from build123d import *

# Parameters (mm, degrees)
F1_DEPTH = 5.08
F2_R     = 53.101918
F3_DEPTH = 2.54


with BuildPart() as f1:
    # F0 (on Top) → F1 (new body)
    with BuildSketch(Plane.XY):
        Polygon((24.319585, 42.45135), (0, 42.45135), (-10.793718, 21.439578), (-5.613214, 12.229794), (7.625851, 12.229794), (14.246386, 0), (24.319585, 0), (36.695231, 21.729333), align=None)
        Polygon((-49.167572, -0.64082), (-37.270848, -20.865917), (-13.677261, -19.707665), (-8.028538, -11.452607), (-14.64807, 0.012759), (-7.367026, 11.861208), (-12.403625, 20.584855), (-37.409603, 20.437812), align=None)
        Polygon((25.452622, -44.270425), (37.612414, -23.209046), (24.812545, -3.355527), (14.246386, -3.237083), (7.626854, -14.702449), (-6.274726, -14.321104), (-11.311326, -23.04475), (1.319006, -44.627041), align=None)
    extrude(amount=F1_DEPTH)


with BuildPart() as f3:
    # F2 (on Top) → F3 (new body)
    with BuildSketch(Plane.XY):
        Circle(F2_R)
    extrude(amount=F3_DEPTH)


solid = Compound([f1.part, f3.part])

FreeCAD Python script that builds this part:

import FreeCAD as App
import Part
import Sketcher
Q = App.Units.Quantity


def add_polygon(sketch, points):
    """Adds a closed chain of lines whose ends are joined by coincident constraints."""
    first, n = sketch.GeometryCount, len(points)
    for a, b in zip(points, points[1:] + points[:1]):
        sketch.addGeometry(Part.LineSegment(App.Vector(*a, 0), App.Vector(*b, 0)), False)
    for i in range(n):
        sketch.addConstraint(Sketcher.Constraint("Coincident", first + i, 2, first + (i + 1) % n, 1))

doc = App.newDocument("Part")
params = doc.addObject("Spreadsheet::Sheet", "Params")
for row, (alias, value) in enumerate([
    ("sketch1_length", "0.93 in"),
    ("sketch1_length2", "0.93 in"),
    ("sketch1_length3", "0.93 in"),
    ("pad1_length", "0.2 in"),
    ("pad2_length", "0.1 in"),
], start=1):
    params.set(f"A{row}", alias)
    params.set(f"B{row}", "=" + value)
    params.setAlias(f"B{row}", alias)

body = doc.addObject("PartDesign::Body", "Body")
body.AllowCompound = True

# Sketch on XY plane
sketch1 = body.newObject("Sketcher::SketchObject", "Sketch")
sketch1.AttachmentSupport = (doc.getObject("XY_Plane"), [""])
sketch1.MapMode = "FlatFace"
add_polygon(sketch1, [(24.319585, 42.45135), (0, 42.45135), (-10.793718, 21.439578), (-5.613214, 12.229794), (7.625851, 12.229794), (14.246386, 0), (24.319585, 0), (36.695231, 21.729333)])  # lines 0-7
add_polygon(sketch1, [(-49.167572, -0.64082), (-37.270848, -20.865917), (-13.677261, -19.707665), (-8.028538, -11.452607), (-14.64807, 0.012759), (-7.367026, 11.861208), (-12.403625, 20.584855), (-37.409603, 20.437812)])  # lines 8-15
add_polygon(sketch1, [(25.452622, -44.270425), (37.612414, -23.209046), (24.812545, -3.355527), (14.246386, -3.237083), (7.626854, -14.702449), (-6.274726, -14.321104), (-11.311326, -23.04475), (1.319006, -44.627041)])  # lines 16-23
sketch1.addConstraint(Sketcher.Constraint("Horizontal", 0))
sketch1.addConstraint(Sketcher.Constraint("Horizontal", 3))
sketch1.addConstraint(Sketcher.Constraint("Horizontal", 5))
sketch1.addConstraint(Sketcher.Constraint("PointOnObject", 0, 2, -2))
sketch1.addConstraint(Sketcher.Constraint("PointOnObject", 4, 2, -1))
sketch1.addConstraint(Sketcher.Constraint("Distance", 1, Q("0.93 in")))
sketch1.addConstraint(Sketcher.Constraint("Distance", 9, Q("0.93 in")))
sketch1.addConstraint(Sketcher.Constraint("Distance", 17, Q("0.93 in")))
sketch1.addConstraint(Sketcher.Constraint("DistanceX", 5, 1, 5, 2, Q("10.073199 mm")))
sketch1.addConstraint(Sketcher.Constraint("DistanceX", 17, 2, 23, 2, Q("0.0251999 in")))
sketch1.addConstraint(Sketcher.Constraint("Distance", 13, Q("10.073199 mm")))
sketch1.addConstraint(Sketcher.Constraint("Distance", 21, Q("10.073199 mm")))
sketch1.addConstraint(Sketcher.Constraint("DistanceX", 2, 2, 4, 2, Q("19.8596 mm")))
sketch1.addConstraint(Sketcher.Constraint("DistanceX", 8, 2, 3, 2, Q("44.896699 mm")))
sketch1.addConstraint(Sketcher.Constraint("DistanceY", 10, 2, 2, 2, Q("23.682401 mm")))
sketch1.addConstraint(Sketcher.Constraint("DistanceX", 13, 2, 12, 2, Q("5.036599 mm")))
sketch1.addConstraint(Sketcher.Constraint("DistanceX", 18, 2, 5, 2, Q("10.073199 mm")))
sketch1.addConstraint(Sketcher.Constraint("DistanceX", 21, 2, 20, 2, Q("5.0366 mm")))
sketch1.addConstraint(Sketcher.Constraint("DistanceY", 21, 2, 19, 2, Q("8.342301 mm")))
sketch1.addConstraint(Sketcher.Constraint("Distance", 4, Q("13.906809 mm")))
sketch1.addConstraint(Sketcher.Constraint("Distance", 6, Q("25.00641 mm")))
sketch1.addConstraint(Sketcher.Constraint("Distance", 7, Q("24.136251 mm")))
sketch1.addConstraint(Sketcher.Constraint("Distance", 8, Q("23.464582 mm")))
sketch1.addConstraint(Sketcher.Constraint("Distance", 12, Q("13.906809 mm")))
sketch1.addConstraint(Sketcher.Constraint("Distance", 14, Q("25.00641 mm")))
sketch1.addConstraint(Sketcher.Constraint("Distance", 15, Q("24.13625 mm")))
sketch1.addConstraint(Sketcher.Constraint("Distance", 20, Q("13.90681 mm")))
sketch1.addConstraint(Sketcher.Constraint("Distance", 22, Q("25.006411 mm")))
sketch1.addConstraint(Sketcher.Constraint("Distance", 23, Q("24.136251 mm")))
sketch1.addConstraint(Sketcher.Constraint("DistanceX", 0, 2, 0, 1, Q("24.319585 mm")))
sketch1.addConstraint(Sketcher.Constraint("DistanceX", 3, 1, 3, 2, Q("13.239065 mm")))
sketch1.addConstraint(Sketcher.Constraint("DistanceY", -1, 1, 0, 2, Q("42.45135 mm")))
sketch1.addConstraint(Sketcher.Constraint("DistanceY", -1, 1, 1, 2, Q("21.439578 mm")))
sketch1.addConstraint(Sketcher.Constraint("DistanceX", -1, 1, 3, 2, Q("7.625851 mm")))
sketch1.addConstraint(Sketcher.Constraint("DistanceX", 9, 2, -1, 1, Q("13.677261 mm")))
sketch1.addConstraint(Sketcher.Constraint("DistanceX", 11, 2, -1, 1, Q("14.64807 mm")))
sketch1.addConstraint(Sketcher.Constraint("DistanceY", -1, 1, 11, 2, Q("0.012759 mm")))
sketch1.addConstraint(Sketcher.Constraint("DistanceY", 15, 2, -1, 1, Q("0.64082 mm")))
sketch1.addConstraint(Sketcher.Constraint("DistanceY", 19, 2, -1, 1, Q("14.702449 mm")))
sketch1.addConstraint(Sketcher.Constraint("DistanceY", 22, 2, -1, 1, Q("44.627041 mm")))
sketch1.addConstraint(Sketcher.Constraint("DistanceY", 8, 2, 2, 2, Q("33.095711 mm")))
sketch1.addConstraint(Sketcher.Constraint("DistanceX", 10, 2, 3, 2, Q("15.654389 mm")))
sketch1.addConstraint(Sketcher.Constraint("DistanceX", 12, 2, 2, 2, Q("1.753812 mm")))
sketch1.addConstraint(Sketcher.Constraint("DistanceX", 5, 2, 16, 2, Q("13.292829 mm")))
sketch1.addConstraint(Sketcher.Constraint("DistanceY", 16, 2, 6, 2, Q("44.938379 mm")))
sketch1.addConstraint(Sketcher.Constraint("DistanceX", 5, 2, 17, 2, Q("0.49296 mm")))
sketch1.addConstraint(Sketcher.Constraint("DistanceX", 19, 2, 18, 2, Q("6.619532 mm")))
sketch1.addConstraint(Sketcher.Constraint("DistanceY", 20, 2, 18, 2, Q("11.084021 mm")))
sketch1.setExpression("Constraints[29]", "Params.sketch1_length")
sketch1.setExpression("Constraints[30]", "Params.sketch1_length2")
sketch1.setExpression("Constraints[31]", "Params.sketch1_length3")
pad1 = body.newObject("PartDesign::Pad", "Pad")
pad1.Profile = sketch1
pad1.setExpression("Length", "Params.pad1_length")
body2 = doc.addObject("PartDesign::Body", "Body001")

# Sketch on XY plane
sketch2 = body2.newObject("Sketcher::SketchObject", "Sketch001")
sketch2.AttachmentSupport = (doc.getObject("XY_Plane001"), [""])
sketch2.MapMode = "FlatFace"
sketch2.addGeometry(Part.Circle(App.Vector(0, 0, 0), App.Vector(0, 0, 1), 53), False)
sketch2.addConstraint(Sketcher.Constraint("Coincident", 0, 3, -1, 1))
sketch2.addConstraint(Sketcher.Constraint("Diameter", 0, Q("106.203836 mm")))
pad2 = body2.newObject("PartDesign::Pad", "Pad001")
pad2.Profile = sketch2
pad2.setExpression("Length", "Params.pad2_length")

doc.recompute()
